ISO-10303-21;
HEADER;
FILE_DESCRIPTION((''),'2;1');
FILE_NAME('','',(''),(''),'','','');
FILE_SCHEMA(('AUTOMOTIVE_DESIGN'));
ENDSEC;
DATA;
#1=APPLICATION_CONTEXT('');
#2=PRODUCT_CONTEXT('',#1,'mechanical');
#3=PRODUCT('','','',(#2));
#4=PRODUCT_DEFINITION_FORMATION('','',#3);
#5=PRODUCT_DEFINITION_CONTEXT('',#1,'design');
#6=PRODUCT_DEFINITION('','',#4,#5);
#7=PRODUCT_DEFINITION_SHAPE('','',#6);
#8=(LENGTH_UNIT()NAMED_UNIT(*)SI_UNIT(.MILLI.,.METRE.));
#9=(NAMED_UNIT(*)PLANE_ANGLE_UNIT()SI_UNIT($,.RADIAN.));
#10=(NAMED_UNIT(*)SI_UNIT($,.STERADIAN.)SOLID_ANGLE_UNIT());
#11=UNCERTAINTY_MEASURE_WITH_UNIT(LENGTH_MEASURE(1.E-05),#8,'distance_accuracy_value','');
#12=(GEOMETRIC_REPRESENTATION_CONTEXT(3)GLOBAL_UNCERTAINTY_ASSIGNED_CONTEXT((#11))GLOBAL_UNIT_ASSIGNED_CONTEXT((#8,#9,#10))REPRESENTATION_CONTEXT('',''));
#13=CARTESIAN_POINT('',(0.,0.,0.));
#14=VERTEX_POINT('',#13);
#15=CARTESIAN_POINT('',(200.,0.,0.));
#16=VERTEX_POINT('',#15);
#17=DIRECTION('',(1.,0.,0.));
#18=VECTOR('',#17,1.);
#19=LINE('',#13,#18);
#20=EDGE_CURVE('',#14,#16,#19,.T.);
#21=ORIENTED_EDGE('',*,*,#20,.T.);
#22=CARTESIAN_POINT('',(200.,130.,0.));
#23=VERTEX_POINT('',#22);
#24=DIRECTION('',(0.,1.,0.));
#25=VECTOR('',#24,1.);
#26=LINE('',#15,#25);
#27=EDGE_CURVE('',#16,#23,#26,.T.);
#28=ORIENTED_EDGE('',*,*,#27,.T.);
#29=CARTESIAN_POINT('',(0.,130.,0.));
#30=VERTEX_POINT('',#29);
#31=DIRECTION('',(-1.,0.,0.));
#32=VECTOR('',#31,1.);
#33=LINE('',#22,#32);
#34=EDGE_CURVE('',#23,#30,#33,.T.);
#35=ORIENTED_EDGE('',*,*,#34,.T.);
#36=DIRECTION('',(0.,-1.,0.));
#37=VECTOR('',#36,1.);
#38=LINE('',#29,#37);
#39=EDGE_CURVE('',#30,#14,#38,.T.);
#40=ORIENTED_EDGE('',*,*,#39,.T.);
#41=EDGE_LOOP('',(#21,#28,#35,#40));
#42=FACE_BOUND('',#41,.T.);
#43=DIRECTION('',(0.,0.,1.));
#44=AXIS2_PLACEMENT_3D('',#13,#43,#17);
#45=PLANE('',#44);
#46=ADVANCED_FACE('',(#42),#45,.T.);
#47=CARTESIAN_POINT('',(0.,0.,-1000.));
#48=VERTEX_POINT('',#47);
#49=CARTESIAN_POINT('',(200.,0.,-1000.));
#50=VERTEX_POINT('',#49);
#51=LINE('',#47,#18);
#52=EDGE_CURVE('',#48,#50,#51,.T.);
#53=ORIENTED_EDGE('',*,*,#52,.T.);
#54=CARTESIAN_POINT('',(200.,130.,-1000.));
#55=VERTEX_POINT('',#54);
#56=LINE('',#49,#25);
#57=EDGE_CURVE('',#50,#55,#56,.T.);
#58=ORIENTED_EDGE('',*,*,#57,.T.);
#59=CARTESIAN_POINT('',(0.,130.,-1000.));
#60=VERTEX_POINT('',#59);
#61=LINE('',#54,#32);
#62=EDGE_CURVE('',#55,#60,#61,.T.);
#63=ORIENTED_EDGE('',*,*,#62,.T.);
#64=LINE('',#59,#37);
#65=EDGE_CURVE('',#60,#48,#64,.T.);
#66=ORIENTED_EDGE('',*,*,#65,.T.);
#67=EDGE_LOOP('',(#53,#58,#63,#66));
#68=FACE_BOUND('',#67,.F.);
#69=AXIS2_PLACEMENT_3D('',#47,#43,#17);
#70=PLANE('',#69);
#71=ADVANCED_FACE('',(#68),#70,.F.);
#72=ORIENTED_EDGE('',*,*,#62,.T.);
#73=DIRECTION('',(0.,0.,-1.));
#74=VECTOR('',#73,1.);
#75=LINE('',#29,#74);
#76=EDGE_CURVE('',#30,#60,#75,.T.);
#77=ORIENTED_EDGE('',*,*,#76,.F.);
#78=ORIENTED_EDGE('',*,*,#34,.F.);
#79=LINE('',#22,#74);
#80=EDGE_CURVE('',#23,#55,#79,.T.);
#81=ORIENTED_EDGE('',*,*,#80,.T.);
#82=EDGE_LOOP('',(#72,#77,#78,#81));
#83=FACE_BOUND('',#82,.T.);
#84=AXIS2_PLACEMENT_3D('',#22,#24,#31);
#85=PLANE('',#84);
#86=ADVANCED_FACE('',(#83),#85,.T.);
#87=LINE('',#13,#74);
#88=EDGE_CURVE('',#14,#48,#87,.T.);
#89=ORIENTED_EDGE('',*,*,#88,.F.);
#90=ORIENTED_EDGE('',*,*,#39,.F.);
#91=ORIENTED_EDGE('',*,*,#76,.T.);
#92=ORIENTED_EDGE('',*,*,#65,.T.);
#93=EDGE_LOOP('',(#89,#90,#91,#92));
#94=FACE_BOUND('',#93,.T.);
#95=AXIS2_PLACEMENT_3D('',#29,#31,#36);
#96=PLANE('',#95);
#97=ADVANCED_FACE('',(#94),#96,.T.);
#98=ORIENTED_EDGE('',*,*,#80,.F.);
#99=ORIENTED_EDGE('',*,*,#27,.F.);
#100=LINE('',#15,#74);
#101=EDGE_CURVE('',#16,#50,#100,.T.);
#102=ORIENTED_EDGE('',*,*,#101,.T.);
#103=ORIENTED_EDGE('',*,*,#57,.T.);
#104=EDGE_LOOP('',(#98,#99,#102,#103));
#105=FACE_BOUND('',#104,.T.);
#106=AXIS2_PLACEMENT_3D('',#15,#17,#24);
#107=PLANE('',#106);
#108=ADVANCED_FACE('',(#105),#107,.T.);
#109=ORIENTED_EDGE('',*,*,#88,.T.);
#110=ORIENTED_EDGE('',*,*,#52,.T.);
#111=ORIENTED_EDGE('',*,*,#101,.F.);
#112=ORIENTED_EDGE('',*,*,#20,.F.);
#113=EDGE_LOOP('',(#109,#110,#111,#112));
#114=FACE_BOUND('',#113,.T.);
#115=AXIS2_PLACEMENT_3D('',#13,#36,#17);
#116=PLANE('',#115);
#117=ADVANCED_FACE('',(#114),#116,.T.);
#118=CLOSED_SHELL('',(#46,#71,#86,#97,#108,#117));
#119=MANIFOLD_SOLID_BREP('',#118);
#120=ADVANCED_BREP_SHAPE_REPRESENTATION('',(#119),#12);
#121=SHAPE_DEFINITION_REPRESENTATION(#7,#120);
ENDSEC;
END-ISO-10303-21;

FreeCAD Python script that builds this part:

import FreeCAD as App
import Part
import Sketcher

V = App.Vector


def add_polygon(sketch, points):
    """Adds a closed chain of lines whose ends are joined by coincident constraints."""
    first, n = sketch.GeometryCount, len(points)
    for a, b in zip(points, points[1:] + points[:1]):
        sketch.addGeometry(Part.LineSegment(App.Vector(*a, 0), App.Vector(*b, 0)), False)
    for i in range(n):
        sketch.addConstraint(Sketcher.Constraint("Coincident", first + i, 2, first + (i + 1) % n, 1))

doc = App.newDocument("Part")
body = doc.addObject("PartDesign::Body", "Body")

sketch1 = body.newObject("Sketcher::SketchObject", "Sketch")
sketch1.AttachmentSupport = (doc.getObject("XY_Plane"), [""])
sketch1.MapMode = "FlatFace"
add_polygon(sketch1, [(0, 130), (0, 0), (200, 0), (200, 130)])
sketch1.addConstraint(Sketcher.Constraint("Vertical", 0))
sketch1.addConstraint(Sketcher.Constraint("Horizontal", 1))
sketch1.addConstraint(Sketcher.Constraint("Vertical", 2))
sketch1.addConstraint(Sketcher.Constraint("Horizontal", 3))
sketch1.addConstraint(Sketcher.Constraint("Coincident", 0, 2, -1, 1))
sketch1.addConstraint(Sketcher.Constraint("DistanceX", 1, 1, 1, 2, 200.0))
sketch1.addConstraint(Sketcher.Constraint("DistanceY", 0, 2, 0, 1, 130.0))
pad1 = body.newObject("PartDesign::Pad", "Pad")
pad1.Profile = sketch1
pad1.Length = 1000
pad1.Reversed = True

doc.recompute()
